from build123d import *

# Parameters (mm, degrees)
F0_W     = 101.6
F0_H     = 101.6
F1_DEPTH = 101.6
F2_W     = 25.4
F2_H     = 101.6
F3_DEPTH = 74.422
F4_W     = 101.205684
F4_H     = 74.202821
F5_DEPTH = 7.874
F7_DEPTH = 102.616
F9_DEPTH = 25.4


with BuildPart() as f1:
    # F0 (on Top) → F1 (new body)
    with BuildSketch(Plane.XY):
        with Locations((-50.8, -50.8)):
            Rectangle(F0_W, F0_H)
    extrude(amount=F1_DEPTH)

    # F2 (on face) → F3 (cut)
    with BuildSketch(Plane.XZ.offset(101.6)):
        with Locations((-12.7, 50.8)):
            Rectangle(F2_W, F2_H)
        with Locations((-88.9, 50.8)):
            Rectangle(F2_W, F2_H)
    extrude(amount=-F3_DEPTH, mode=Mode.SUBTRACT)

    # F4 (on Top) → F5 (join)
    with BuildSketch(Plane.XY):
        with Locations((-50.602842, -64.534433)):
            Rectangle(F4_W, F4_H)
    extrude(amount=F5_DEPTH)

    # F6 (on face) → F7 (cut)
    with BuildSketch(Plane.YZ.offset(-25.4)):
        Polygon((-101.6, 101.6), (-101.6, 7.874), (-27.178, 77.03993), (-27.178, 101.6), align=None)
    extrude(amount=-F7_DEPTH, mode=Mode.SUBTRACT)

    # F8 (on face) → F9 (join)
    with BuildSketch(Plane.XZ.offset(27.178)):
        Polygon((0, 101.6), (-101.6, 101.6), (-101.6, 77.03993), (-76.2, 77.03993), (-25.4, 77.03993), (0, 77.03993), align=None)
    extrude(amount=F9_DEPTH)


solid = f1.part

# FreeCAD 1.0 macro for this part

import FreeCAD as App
import Part
import Sketcher
Q = App.Units.Quantity


def add_polygon(sketch, points):
    """Adds a closed chain of lines whose ends are joined by coincident constraints."""
    first, n = sketch.GeometryCount, len(points)
    for a, b in zip(points, points[1:] + points[:1]):
        sketch.addGeometry(Part.LineSegment(App.Vector(*a, 0), App.Vector(*b, 0)), False)
    for i in range(n):
        sketch.addConstraint(Sketcher.Constraint("Coincident", first + i, 2, first + (i + 1) % n, 1))

doc = App.newDocument("Part")
body = doc.addObject("PartDesign::Body", "Body")

sketch1 = body.newObject("Sketcher::SketchObject", "Sketch")
sketch1.AttachmentSupport = (doc.getObject("XY_Plane"), [""])
sketch1.MapMode = "FlatFace"
add_polygon(sketch1, [(-101.6, 0), (-101.6, -101.6), (0, -101.6), (0, 0)])
sketch1.addConstraint([
    Sketcher.Constraint("Vertical", 0),
    Sketcher.Constraint("Horizontal", 1),
    Sketcher.Constraint("Vertical", 2),
    Sketcher.Constraint("Horizontal", 3),
    Sketcher.Constraint("Coincident", 2, 2, -1, 1),
    Sketcher.Constraint("Equal", 3, 0),
    Sketcher.Constraint("DistanceX", 1, 1, 1, 2, Q("4 in")),
])
pad1 = body.newObject("PartDesign::Pad", "Pad")
pad1.Profile = sketch1
pad1.Length = Q("4 in")

sketch2 = body.newObject("Sketcher::SketchObject", "Sketch001")
sketch2.AttachmentSupport = (doc.getObject("XZ_Plane"), [""])
sketch2.MapMode = "FlatFace"
sketch2.AttachmentOffset = App.Placement(App.Vector(0, 0, 4 * 25.4), App.Rotation())
add_polygon(sketch2, [(-25.4, 101.6), (-25.4, 0), (0, 0), (0, 101.6)])
add_polygon(sketch2, [(-101.6, 101.6), (-101.6, 0), (-76.2, 0), (-76.2, 101.6)])
sketch2.addConstraint([
    Sketcher.Constraint("Vertical", 0),
    Sketcher.Constraint("Horizontal", 1),
    Sketcher.Constraint("Vertical", 2),
    Sketcher.Constraint("Horizontal", 3),
    Sketcher.Constraint("Vertical", 4),
    Sketcher.Constraint("Horizontal", 5),
    Sketcher.Constraint("Vertical", 6),
    Sketcher.Constraint("Horizontal", 7),
    Sketcher.Constraint("Coincident", 1, 2, -1, 1),
    Sketcher.Constraint("PointOnObject", 4, 2, -1),
    Sketcher.Constraint("Horizontal", 3, 2, 6, 2),
    Sketcher.Constraint("Equal", 3, 5),
    Sketcher.Constraint("DistanceX", 1, 1, 1, 2, Q("1 in")),
    Sketcher.Constraint("DistanceY", 0, 2, 0, 1, Q("4 in")),
    Sketcher.Constraint("DistanceX", 4, 2, -1, 1, Q("4 in")),
])
pocket1 = body.newObject("PartDesign::Pocket", "Pocket")
pocket1.Profile = sketch2
pocket1.Length = Q("2.93 in")

sketch3 = body.newObject("Sketcher::SketchObject", "Sketch002")
sketch3.AttachmentSupport = (doc.getObject("XY_Plane"), [""])
sketch3.MapMode = "FlatFace"
add_polygon(sketch3, [(-101.205684, -27.433022), (-101.205684, -101.635843), (0, -101.635843), (0, -27.433022)])
sketch3.addConstraint([
    Sketcher.Constraint("Vertical", 0),
    Sketcher.Constraint("Horizontal", 1),
    Sketcher.Constraint("Vertical", 2),
    Sketcher.Constraint("Horizontal", 3),
    Sketcher.Constraint("PointOnObject", 1, 2, -2),
    Sketcher.Constraint("DistanceY", 0, 2, 0, 1, Q("74.202821 mm")),
    Sketcher.Constraint("DistanceX", 1, 1, 1, 2, Q("101.205684 mm")),
    Sketcher.Constraint("DistanceY", 0, 2, -1, 1, Q("101.635843 mm")),
])
pad2 = body.newObject("PartDesign::Pad", "Pad001")
pad2.Profile = sketch3
pad2.Length = Q("0.31 in")

sketch4 = body.newObject("Sketcher::SketchObject", "Sketch003")
sketch4.AttachmentSupport = (doc.getObject("YZ_Plane"), [""])
sketch4.MapMode = "FlatFace"
sketch4.AttachmentOffset = App.Placement(App.Vector(0, 0, -1 * 25.4), App.Rotation())
add_polygon(sketch4, [(-101.6, 101.6), (-101.6, 7.874), (-27.178, 77.03993), (-27.178, 101.6)])
sketch4.addConstraint([
    Sketcher.Constraint("Vertical", 0),
    Sketcher.Constraint("Vertical", 2),
    Sketcher.Constraint("Horizontal", 3),
    Sketcher.Constraint("Distance", 1, Q("4 in")),
    Sketcher.Constraint("DistanceX", 0, 2, -1, 1, Q("4 in")),
    Sketcher.Constraint("DistanceY", -1, 1, 2, 2, Q("4 in")),
    Sketcher.Constraint("DistanceX", 3, 2, 3, 1, Q("2.93 in")),
    Sketcher.Constraint("DistanceY", 0, 2, 0, 1, Q("3.69 in")),
])
pocket2 = body.newObject("PartDesign::Pocket", "Pocket001")
pocket2.Profile = sketch4
pocket2.Length = Q("4.04 in")

sketch5 = body.newObject("Sketcher::SketchObject", "Sketch004")
sketch5.AttachmentSupport = (doc.getObject("XZ_Plane"), [""])
sketch5.MapMode = "FlatFace"
sketch5.AttachmentOffset = App.Placement(App.Vector(0, 0, 1.07 * 25.4), App.Rotation())
add_polygon(sketch5, [(0, 101.6), (-101.6, 101.6), (-101.6, 77.03993), (0, 77.03993)])
sketch5.addConstraint([
    Sketcher.Constraint("Horizontal", 0),
    Sketcher.Constraint("Vertical", 1),
    Sketcher.Constraint("Horizontal", 2),
    Sketcher.Constraint("Vertical", 3),
    Sketcher.Constraint("PointOnObject", 2, 2, -2),
    Sketcher.Constraint("DistanceX", 0, 2, 0, 1, Q("4 in")),
    Sketcher.Constraint("DistanceY", -1, 1, 0, 2, Q("4 in")),
    Sketcher.Constraint("DistanceY", 1, 2, 1, 1, Q("24.56007 mm")),
])
pad3 = body.newObject("PartDesign::Pad", "Pad002")
pad3.Profile = sketch5
pad3.Length = Q("1 in")

doc.recompute()
